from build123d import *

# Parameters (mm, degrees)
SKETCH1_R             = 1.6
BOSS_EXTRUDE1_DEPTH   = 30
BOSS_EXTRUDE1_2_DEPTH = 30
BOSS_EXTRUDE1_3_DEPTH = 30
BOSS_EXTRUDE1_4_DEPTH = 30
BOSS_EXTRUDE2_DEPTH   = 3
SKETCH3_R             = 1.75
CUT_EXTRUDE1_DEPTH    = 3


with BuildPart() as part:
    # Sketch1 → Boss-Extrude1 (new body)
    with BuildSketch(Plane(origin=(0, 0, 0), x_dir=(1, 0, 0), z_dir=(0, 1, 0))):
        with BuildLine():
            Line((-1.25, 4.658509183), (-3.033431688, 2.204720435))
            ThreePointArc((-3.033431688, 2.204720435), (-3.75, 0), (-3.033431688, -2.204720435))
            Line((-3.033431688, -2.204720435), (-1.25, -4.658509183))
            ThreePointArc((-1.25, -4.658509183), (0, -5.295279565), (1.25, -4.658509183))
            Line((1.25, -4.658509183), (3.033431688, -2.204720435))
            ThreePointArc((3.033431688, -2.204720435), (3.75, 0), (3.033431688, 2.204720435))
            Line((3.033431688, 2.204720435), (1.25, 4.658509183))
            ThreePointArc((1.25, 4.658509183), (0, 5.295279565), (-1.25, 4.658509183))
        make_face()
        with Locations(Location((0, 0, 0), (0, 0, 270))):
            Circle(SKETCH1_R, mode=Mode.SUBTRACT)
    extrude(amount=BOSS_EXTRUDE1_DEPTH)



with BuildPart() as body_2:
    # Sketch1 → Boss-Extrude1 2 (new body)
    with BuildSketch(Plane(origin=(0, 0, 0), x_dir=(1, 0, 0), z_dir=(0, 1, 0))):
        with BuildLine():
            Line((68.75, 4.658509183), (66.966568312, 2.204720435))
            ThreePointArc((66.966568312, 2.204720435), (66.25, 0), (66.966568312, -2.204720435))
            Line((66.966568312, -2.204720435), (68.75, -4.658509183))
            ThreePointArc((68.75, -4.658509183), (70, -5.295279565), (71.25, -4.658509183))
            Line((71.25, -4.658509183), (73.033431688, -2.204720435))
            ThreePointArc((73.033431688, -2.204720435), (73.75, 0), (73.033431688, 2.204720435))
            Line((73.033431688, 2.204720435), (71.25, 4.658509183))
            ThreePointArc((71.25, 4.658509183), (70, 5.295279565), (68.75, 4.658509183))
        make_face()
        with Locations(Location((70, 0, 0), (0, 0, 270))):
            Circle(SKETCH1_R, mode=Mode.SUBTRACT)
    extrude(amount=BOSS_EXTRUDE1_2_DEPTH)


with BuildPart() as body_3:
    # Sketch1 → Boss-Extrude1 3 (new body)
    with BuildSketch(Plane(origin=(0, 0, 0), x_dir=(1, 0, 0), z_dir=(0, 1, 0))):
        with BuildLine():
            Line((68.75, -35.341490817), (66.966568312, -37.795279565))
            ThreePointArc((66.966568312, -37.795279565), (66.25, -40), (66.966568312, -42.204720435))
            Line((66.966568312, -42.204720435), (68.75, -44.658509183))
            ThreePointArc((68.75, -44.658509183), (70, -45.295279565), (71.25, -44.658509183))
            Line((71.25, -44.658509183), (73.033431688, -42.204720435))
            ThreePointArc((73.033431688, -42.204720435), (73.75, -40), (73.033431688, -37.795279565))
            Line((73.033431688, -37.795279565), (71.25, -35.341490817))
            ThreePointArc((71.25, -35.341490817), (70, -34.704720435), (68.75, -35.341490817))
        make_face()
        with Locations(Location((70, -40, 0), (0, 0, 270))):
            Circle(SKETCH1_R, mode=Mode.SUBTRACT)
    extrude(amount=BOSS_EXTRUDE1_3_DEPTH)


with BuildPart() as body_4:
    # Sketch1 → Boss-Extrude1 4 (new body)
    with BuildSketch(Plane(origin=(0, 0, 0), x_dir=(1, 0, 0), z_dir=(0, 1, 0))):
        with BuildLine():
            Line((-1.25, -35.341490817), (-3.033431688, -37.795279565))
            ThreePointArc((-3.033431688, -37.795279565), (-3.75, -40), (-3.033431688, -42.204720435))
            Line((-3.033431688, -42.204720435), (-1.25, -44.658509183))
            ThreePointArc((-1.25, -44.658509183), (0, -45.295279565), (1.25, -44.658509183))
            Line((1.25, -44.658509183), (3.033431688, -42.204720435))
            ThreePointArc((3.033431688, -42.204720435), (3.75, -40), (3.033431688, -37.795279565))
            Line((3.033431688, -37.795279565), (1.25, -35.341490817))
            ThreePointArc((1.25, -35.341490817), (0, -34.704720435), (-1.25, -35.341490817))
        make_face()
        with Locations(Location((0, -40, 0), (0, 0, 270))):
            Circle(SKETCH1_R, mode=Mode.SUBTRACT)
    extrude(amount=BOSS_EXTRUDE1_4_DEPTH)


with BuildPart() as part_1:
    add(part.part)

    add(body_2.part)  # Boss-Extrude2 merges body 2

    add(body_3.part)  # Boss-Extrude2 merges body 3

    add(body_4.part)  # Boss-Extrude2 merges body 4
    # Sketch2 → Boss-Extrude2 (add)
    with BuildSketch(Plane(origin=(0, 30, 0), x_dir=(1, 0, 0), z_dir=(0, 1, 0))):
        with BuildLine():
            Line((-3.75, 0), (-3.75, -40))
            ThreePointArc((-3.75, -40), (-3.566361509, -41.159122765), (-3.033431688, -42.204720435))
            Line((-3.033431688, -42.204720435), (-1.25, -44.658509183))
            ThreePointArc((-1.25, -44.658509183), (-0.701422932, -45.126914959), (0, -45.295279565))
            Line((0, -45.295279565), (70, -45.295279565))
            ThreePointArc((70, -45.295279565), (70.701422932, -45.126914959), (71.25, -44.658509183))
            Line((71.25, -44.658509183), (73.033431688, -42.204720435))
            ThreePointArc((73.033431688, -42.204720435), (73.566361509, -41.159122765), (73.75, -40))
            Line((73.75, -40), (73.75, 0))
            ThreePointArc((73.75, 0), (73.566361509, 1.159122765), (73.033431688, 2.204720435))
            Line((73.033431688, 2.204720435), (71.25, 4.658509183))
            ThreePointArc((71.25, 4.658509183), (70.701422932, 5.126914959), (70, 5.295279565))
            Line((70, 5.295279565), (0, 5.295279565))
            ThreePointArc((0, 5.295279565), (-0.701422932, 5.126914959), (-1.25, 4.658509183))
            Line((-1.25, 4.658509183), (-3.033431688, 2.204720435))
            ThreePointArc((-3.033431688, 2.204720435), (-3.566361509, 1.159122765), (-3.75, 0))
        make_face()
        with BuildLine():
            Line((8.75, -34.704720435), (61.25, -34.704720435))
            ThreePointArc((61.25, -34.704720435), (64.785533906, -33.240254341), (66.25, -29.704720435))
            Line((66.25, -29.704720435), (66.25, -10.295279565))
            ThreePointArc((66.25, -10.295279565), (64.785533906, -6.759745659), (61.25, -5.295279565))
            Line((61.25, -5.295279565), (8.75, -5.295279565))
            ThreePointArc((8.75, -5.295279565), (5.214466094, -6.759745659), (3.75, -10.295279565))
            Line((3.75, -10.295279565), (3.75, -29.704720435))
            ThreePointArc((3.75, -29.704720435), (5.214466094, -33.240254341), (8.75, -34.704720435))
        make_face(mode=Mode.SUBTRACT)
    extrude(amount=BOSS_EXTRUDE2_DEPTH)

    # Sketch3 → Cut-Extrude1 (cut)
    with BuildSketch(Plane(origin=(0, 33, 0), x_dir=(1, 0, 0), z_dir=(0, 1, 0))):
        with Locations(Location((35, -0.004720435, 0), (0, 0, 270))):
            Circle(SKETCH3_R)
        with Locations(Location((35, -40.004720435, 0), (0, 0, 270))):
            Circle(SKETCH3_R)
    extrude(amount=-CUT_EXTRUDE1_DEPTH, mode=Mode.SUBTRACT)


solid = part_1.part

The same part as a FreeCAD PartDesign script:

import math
import FreeCAD as App
import Part
import Sketcher

V = App.Vector
Q = App.Units.Quantity

doc = App.newDocument("Part")
body = doc.addObject("PartDesign::Body", "Body")

sketch1 = body.newObject("Sketcher::SketchObject", "Sketch")
sketch1.AttachmentSupport = (doc.getObject("XZ_Plane"), [""])
sketch1.MapMode = "FlatFace"
sketch1.addGeometry([
    Part.LineSegment(V(-1.25, -4.658509, 0), V(-3.033432, -2.20472, 0)),
    Part.ArcOfCircle(Part.Circle(V(0, 0, 0), V(0, 0, 1), 3.75), math.radians(143.99007), math.radians(216.00993)),
    Part.LineSegment(V(-3.033432, 2.20472, 0), V(-1.25, 4.658509, 0)),
    Part.ArcOfCircle(Part.Circle(V(0, 3.75, 0), V(0, 0, 1), 1.54528), math.radians(36.00993), math.radians(143.99007)),
    Part.LineSegment(V(1.25, 4.658509, 0), V(3.033432, 2.20472, 0)),
    Part.ArcOfCircle(Part.Circle(V(0, 0, 0), V(0, 0, 1), 3.75), math.radians(-36.00993), math.radians(36.00993)),
    Part.LineSegment(V(3.033432, -2.20472, 0), V(1.25, -4.658509, 0)),
    Part.ArcOfCircle(Part.Circle(V(0, -3.75, 0), V(0, 0, 1), 1.54528), math.radians(-143.99007), math.radians(-36.00993)),
    Part.Circle(V(0, 0, 0), V(0, 0, 1), 1.6),
], False)
sketch1.addConstraint([
    Sketcher.Constraint("Tangent", 0, 2, 1, 2),
    Sketcher.Constraint("Tangent", 1, 1, 2, 1),
    Sketcher.Constraint("Tangent", 2, 2, 3, 2),
    Sketcher.Constraint("Tangent", 3, 1, 4, 1),
    Sketcher.Constraint("Tangent", 4, 2, 5, 2),
    Sketcher.Constraint("Tangent", 5, 1, 6, 1),
    Sketcher.Constraint("Tangent", 6, 2, 7, 2),
    Sketcher.Constraint("Tangent", 7, 1, 0, 1),
    Sketcher.Constraint("Coincident", 1, 3, -1, 1),
    Sketcher.Constraint("Coincident", 5, 3, -1, 1),
    Sketcher.Constraint("Coincident", 8, 3, -1, 1),
    Sketcher.Constraint("Equal", 1, 5),
    Sketcher.Constraint("Equal", 3, 7),
    Sketcher.Constraint("Symmetric", 3, 3, 7, 3, -1, 1),
    Sketcher.Constraint("PointOnObject", 3, 3, -2),
    Sketcher.Constraint("Diameter", 8, Q("3.2 mm")),
    Sketcher.Constraint("Radius", 1, Q("3.75 mm")),
    Sketcher.Constraint("DistanceY", 7, 3, 3, 3, Q("7.5 mm")),
    Sketcher.Constraint("DistanceX", 2, 2, 3, 1, Q("2.5 mm")),
])
pad1 = body.newObject("PartDesign::Pad", "Pad")
pad1.Profile = sketch1
pad1.Length = 30
pad1.Reversed = True
body2 = doc.addObject("PartDesign::Body", "Body001")

sketch2 = body2.newObject("Sketcher::SketchObject", "Sketch001")
sketch2.AttachmentSupport = (doc.getObject("XZ_Plane001"), [""])
sketch2.MapMode = "FlatFace"
sketch2.addGeometry([
    Part.LineSegment(V(68.75, -4.658509, 0), V(66.966568, -2.20472, 0)),
    Part.ArcOfCircle(Part.Circle(V(70, 0, 0), V(0, 0, 1), 3.75), math.radians(143.99007), math.radians(216.00993)),
    Part.LineSegment(V(66.966568, 2.20472, 0), V(68.75, 4.658509, 0)),
    Part.ArcOfCircle(Part.Circle(V(70, 3.75, 0), V(0, 0, 1), 1.54528), math.radians(36.00993), math.radians(143.99007)),
    Part.LineSegment(V(71.25, 4.658509, 0), V(73.033432, 2.20472, 0)),
    Part.ArcOfCircle(Part.Circle(V(70, 0, 0), V(0, 0, 1), 3.75), math.radians(-36.00993), math.radians(36.00993)),
    Part.LineSegment(V(73.033432, -2.20472, 0), V(71.25, -4.658509, 0)),
    Part.ArcOfCircle(Part.Circle(V(70, -3.75, 0), V(0, 0, 1), 1.54528), math.radians(-143.99007), math.radians(-36.00993)),
    Part.Circle(V(70, 0, 0), V(0, 0, 1), 1.6),
], False)
sketch2.addConstraint([
    Sketcher.Constraint("Tangent", 0, 2, 1, 2),
    Sketcher.Constraint("Tangent", 1, 1, 2, 1),
    Sketcher.Constraint("Tangent", 2, 2, 3, 2),
    Sketcher.Constraint("Tangent", 3, 1, 4, 1),
    Sketcher.Constraint("Tangent", 4, 2, 5, 2),
    Sketcher.Constraint("Tangent", 5, 1, 6, 1),
    Sketcher.Constraint("Tangent", 6, 2, 7, 2),
    Sketcher.Constraint("Tangent", 7, 1, 0, 1),
    Sketcher.Constraint("Coincident", 5, 3, 1, 3),
    Sketcher.Constraint("Coincident", 8, 3, 1, 3),
    Sketcher.Constraint("Equal", 1, 5),
    Sketcher.Constraint("Equal", 3, 7),
    Sketcher.Constraint("Symmetric", 3, 3, 7, 3, -1),
    Sketcher.Constraint("PointOnObject", 1, 3, -1),
    Sketcher.Constraint("Parallel", 0, 4),
    Sketcher.Constraint("Diameter", 8, Q("3.2 mm")),
    Sketcher.Constraint("Radius", 1, Q("3.75 mm")),
    Sketcher.Constraint("DistanceX", -1, 1, 1, 3, Q("70 mm")),
    Sketcher.Constraint("DistanceY", 7, 3, 3, 3, Q("7.5 mm")),
    Sketcher.Constraint("DistanceX", 2, 2, 3, 1, Q("2.5 mm")),
])
pad2 = body2.newObject("PartDesign::Pad", "Pad001")
pad2.Profile = sketch2
pad2.Length = 30
pad2.Reversed = True
body3 = doc.addObject("PartDesign::Body", "Body002")

sketch3 = body3.newObject("Sketcher::SketchObject", "Sketch002")
sketch3.AttachmentSupport = (doc.getObject("XZ_Plane002"), [""])
sketch3.MapMode = "FlatFace"
sketch3.addGeometry([
    Part.LineSegment(V(68.75, 35.341491, 0), V(66.966568, 37.79528, 0)),
    Part.ArcOfCircle(Part.Circle(V(70, 40, 0), V(0, 0, 1), 3.75), math.radians(143.99007), math.radians(216.00993)),
    Part.LineSegment(V(66.966568, 42.20472, 0), V(68.75, 44.658509, 0)),
    Part.ArcOfCircle(Part.Circle(V(70, 43.75, 0), V(0, 0, 1), 1.54528), math.radians(36.00993), math.radians(143.99007)),
    Part.LineSegment(V(71.25, 44.658509, 0), V(73.033432, 42.20472, 0)),
    Part.ArcOfCircle(Part.Circle(V(70, 40, 0), V(0, 0, 1), 3.75), math.radians(-36.00993), math.radians(36.00993)),
    Part.LineSegment(V(73.033432, 37.79528, 0), V(71.25, 35.341491, 0)),
    Part.ArcOfCircle(Part.Circle(V(70, 36.25, 0), V(0, 0, 1), 1.54528), math.radians(-143.99007), math.radians(-36.00993)),
    Part.Circle(V(70, 40, 0), V(0, 0, 1), 1.6),
], False)
sketch3.addConstraint([
    Sketcher.Constraint("Tangent", 0, 2, 1, 2),
    Sketcher.Constraint("Tangent", 1, 1, 2, 1),
    Sketcher.Constraint("Tangent", 2, 2, 3, 2),
    Sketcher.Constraint("Tangent", 3, 1, 4, 1),
    Sketcher.Constraint("Tangent", 4, 2, 5, 2),
    Sketcher.Constraint("Tangent", 5, 1, 6, 1),
    Sketcher.Constraint("Tangent", 6, 2, 7, 2),
    Sketcher.Constraint("Tangent", 7, 1, 0, 1),
    Sketcher.Constraint("Coincident", 5, 3, 1, 3),
    Sketcher.Constraint("Coincident", 8, 3, 1, 3),
    Sketcher.Constraint("Equal", 1, 5),
    Sketcher.Constraint("Equal", 3, 7),
    Sketcher.Constraint("Parallel", 0, 4),
    Sketcher.Constraint("Parallel", 2, 6),
    Sketcher.Constraint("Horizontal", 2, 2, 3, 1),
    Sketcher.Constraint("Diameter", 8, Q("3.2 mm")),
    Sketcher.Constraint("Radius", 1, Q("3.75 mm")),
    Sketcher.Constraint("DistanceX", -1, 1, 1, 3, Q("70 mm")),
    Sketcher.Constraint("DistanceY", -1, 1, 1, 3, Q("40 mm")),
    Sketcher.Constraint("DistanceY", 7, 3, 3, 3, Q("7.5 mm")),
    Sketcher.Constraint("DistanceX", 2, 2, 3, 1, Q("2.5 mm")),
])
pad3 = body3.newObject("PartDesign::Pad", "Pad002")
pad3.Profile = sketch3
pad3.Length = 30
pad3.Reversed = True
body4 = doc.addObject("PartDesign::Body", "Body003")

sketch4 = body4.newObject("Sketcher::SketchObject", "Sketch003")
sketch4.AttachmentSupport = (doc.getObject("XZ_Plane003"), [""])
sketch4.MapMode = "FlatFace"
sketch4.addGeometry([
    Part.LineSegment(V(-1.25, 35.341491, 0), V(-3.033432, 37.79528, 0)),
    Part.ArcOfCircle(Part.Circle(V(0, 40, 0), V(0, 0, 1), 3.75), math.radians(143.99007), math.radians(216.00993)),
    Part.LineSegment(V(-3.033432, 42.20472, 0), V(-1.25, 44.658509, 0)),
    Part.ArcOfCircle(Part.Circle(V(0, 43.75, 0), V(0, 0, 1), 1.54528), math.radians(36.00993), math.radians(143.99007)),
    Part.LineSegment(V(1.25, 44.658509, 0), V(3.033432, 42.20472, 0)),
    Part.ArcOfCircle(Part.Circle(V(0, 40, 0), V(0, 0, 1), 3.75), math.radians(-36.00993), math.radians(36.00993)),
    Part.LineSegment(V(3.033432, 37.79528, 0), V(1.25, 35.341491, 0)),
    Part.ArcOfCircle(Part.Circle(V(0, 36.25, 0), V(0, 0, 1), 1.54528), math.radians(-143.99007), math.radians(-36.00993)),
    Part.Circle(V(0, 40, 0), V(0, 0, 1), 1.6),
], False)
sketch4.addConstraint([
    Sketcher.Constraint("Tangent", 0, 2, 1, 2),
    Sketcher.Constraint("Tangent", 1, 1, 2, 1),
    Sketcher.Constraint("Tangent", 2, 2, 3, 2),
    Sketcher.Constraint("Tangent", 3, 1, 4, 1),
    Sketcher.Constraint("Tangent", 4, 2, 5, 2),
    Sketcher.Constraint("Tangent", 5, 1, 6, 1),
    Sketcher.Constraint("Tangent", 6, 2, 7, 2),
    Sketcher.Constraint("Tangent", 7, 1, 0, 1),
    Sketcher.Constraint("Coincident", 5, 3, 1, 3),
    Sketcher.Constraint("Coincident", 8, 3, 1, 3),
    Sketcher.Constraint("Equal", 1, 5),
    Sketcher.Constraint("Equal", 3, 7),
    Sketcher.Constraint("Symmetric", 2, 2, 3, 1, -2),
    Sketcher.Constraint("PointOnObject", 7, 3, -2),
    Sketcher.Constraint("Parallel", 0, 4),
    Sketcher.Constraint("Diameter", 8, Q("3.2 mm")),
    Sketcher.Constraint("Radius", 1, Q("3.75 mm")),
    Sketcher.Constraint("DistanceY", -1, 1, 1, 3, Q("40 mm")),
    Sketcher.Constraint("DistanceY", 7, 3, 3, 3, Q("7.5 mm")),
    Sketcher.Constraint("DistanceX", 2, 2, 3, 1, Q("2.5 mm")),
])
pad4 = body4.newObject("PartDesign::Pad", "Pad003")
pad4.Profile = sketch4
pad4.Length = 30
pad4.Reversed = True
body.AllowCompound = True
doc.recompute()

boolean = body.newObject("PartDesign::Boolean", "Boolean")
boolean.Type = "Fuse"
boolean.addObjects([body2])
doc.recompute()

boolean2 = body.newObject("PartDesign::Boolean", "Boolean001")
boolean2.Type = "Fuse"
boolean2.addObjects([body3])
doc.recompute()

boolean3 = body.newObject("PartDesign::Boolean", "Boolean002")
boolean3.Type = "Fuse"
boolean3.addObjects([body4])

sketch5 = body.newObject("Sketcher::SketchObject", "Sketch004")
sketch5.AttachmentSupport = (doc.getObject("XZ_Plane"), [""])
sketch5.MapMode = "FlatFace"
sketch5.AttachmentOffset = App.Placement(V(0, 0, -30), App.Rotation())
sketch5.addGeometry([
    Part.LineSegment(V(-3.75, 0, 0), V(-3.75, 40, 0)),
    Part.ArcOfCircle(Part.Circle(V(0, 40, 0), V(0, 0, 1), 3.75), math.radians(143.99007), math.radians(180)),
    Part.LineSegment(V(-3.033432, 42.20472, 0), V(-1.25, 44.658509, 0)),
    Part.ArcOfCircle(Part.Circle(V(0, 43.75, 0), V(0, 0, 1), 1.54528), math.radians(90), math.radians(143.99007)),
    Part.LineSegment(V(0, 45.29528, 0), V(70, 45.29528, 0)),
    Part.ArcOfCircle(Part.Circle(V(70, 43.75, 0), V(0, 0, 1), 1.54528), math.radians(36.00993), math.radians(90)),
    Part.LineSegment(V(71.25, 44.658509, 0), V(73.033432, 42.20472, 0)),
    Part.ArcOfCircle(Part.Circle(V(70, 40, 0), V(0, 0, 1), 3.75), math.radians(0), math.radians(36.00993)),
    Part.LineSegment(V(73.75, 40, 0), V(73.75, 0, 0)),
    Part.ArcOfCircle(Part.Circle(V(70, 0, 0), V(0, 0, 1), 3.75), math.radians(-36.00993), math.radians(0)),
    Part.LineSegment(V(73.033432, -2.20472, 0), V(71.25, -4.658509, 0)),
    Part.ArcOfCircle(Part.Circle(V(70, -3.75, 0), V(0, 0, 1), 1.54528), math.radians(-90), math.radians(-36.00993)),
    Part.LineSegment(V(70, -5.29528, 0), V(0, -5.29528, 0)),
    Part.ArcOfCircle(Part.Circle(V(0, -3.75, 0), V(0, 0, 1), 1.54528), math.radians(-143.99007), math.radians(-90)),
    Part.LineSegment(V(-1.25, -4.658509, 0), V(-3.033432, -2.20472, 0)),
    Part.ArcOfCircle(Part.Circle(V(0, 0, 0), V(0, 0, 1), 3.75), math.radians(-180), math.radians(-143.99007)),
    Part.LineSegment(V(61.25, 34.70472, 0), V(8.75, 34.70472, 0)),
    Part.ArcOfCircle(Part.Circle(V(8.75, 29.70472, 0), V(0, 0, 1), 5), math.radians(90), math.radians(180)),
    Part.LineSegment(V(3.75, 29.70472, 0), V(3.75, 10.29528, 0)),
    Part.ArcOfCircle(Part.Circle(V(8.75, 10.29528, 0), V(0, 0, 1), 5), math.radians(180), math.radians(270)),
    Part.LineSegment(V(8.75, 5.29528, 0), V(61.25, 5.29528, 0)),
    Part.ArcOfCircle(Part.Circle(V(61.25, 10.29528, 0), V(0, 0, 1), 5), math.radians(-90), math.radians(0)),
    Part.LineSegment(V(66.25, 10.29528, 0), V(66.25, 29.70472, 0)),
    Part.ArcOfCircle(Part.Circle(V(61.25, 29.70472, 0), V(0, 0, 1), 5), math.radians(0), math.radians(90)),
], False)
sketch5.addConstraint([
    Sketcher.Constraint("Tangent", 0, 2, 1, 2),
    Sketcher.Constraint("Tangent", 1, 1, 2, 1),
    Sketcher.Constraint("Tangent", 2, 2, 3, 2),
    Sketcher.Constraint("Tangent", 3, 1, 4, 1),
    Sketcher.Constraint("Tangent", 4, 2, 5, 2),
    Sketcher.Constraint("Tangent", 5, 1, 6, 1),
    Sketcher.Constraint("Tangent", 6, 2, 7, 2),
    Sketcher.Constraint("Tangent", 7, 1, 8, 1),
    Sketcher.Constraint("Tangent", 8, 2, 9, 2),
    Sketcher.Constraint("Tangent", 9, 1, 10, 1),
    Sketcher.Constraint("Tangent", 10, 2, 11, 2),
    Sketcher.Constraint("Tangent", 11, 1, 12, 1),
    Sketcher.Constraint("Tangent", 12, 2, 13, 2),
    Sketcher.Constraint("Tangent", 13, 1, 14, 1),
    Sketcher.Constraint("Tangent", 14, 2, 15, 2),
    Sketcher.Constraint("Tangent", 15, 1, 0, 1),
    Sketcher.Constraint("Tangent", 16, 2, 17, 1),
    Sketcher.Constraint("Tangent", 17, 2, 18, 1),
    Sketcher.Constraint("Tangent", 18, 2, 19, 1),
    Sketcher.Constraint("Tangent", 19, 2, 20, 1),
    Sketcher.Constraint("Tangent", 20, 2, 21, 1),
    Sketcher.Constraint("Tangent", 21, 2, 22, 1),
    Sketcher.Constraint("Tangent", 22, 2, 23, 1),
    Sketcher.Constraint("Tangent", 23, 2, 16, 1),
    Sketcher.Constraint("Vertical", 0),
    Sketcher.Constraint("Horizontal", 4),
    Sketcher.Constraint("Vertical", 8),
    Sketcher.Constraint("Horizontal", 12),
    Sketcher.Constraint("Horizontal", 16),
    Sketcher.Constraint("Vertical", 18),
    Sketcher.Constraint("Horizontal", 20),
    Sketcher.Constraint("Vertical", 22),
    Sketcher.Constraint("Coincident", 15, 3, -1, 1),
    Sketcher.Constraint("Equal", 3, 5),
    Sketcher.Constraint("Equal", 1, 7),
    Sketcher.Constraint("Equal", 7, 9),
    Sketcher.Constraint("Equal", 5, 11),
    Sketcher.Constraint("Equal", 11, 13),
    Sketcher.Constraint("Equal", 9, 15),
    Sketcher.Constraint("Equal", 17, 19),
    Sketcher.Constraint("Equal", 19, 21),
    Sketcher.Constraint("Equal", 21, 23),
    Sketcher.Constraint("PointOnObject", 3, 3, -2),
    Sketcher.Constraint("PointOnObject", 9, 3, -1),
    Sketcher.Constraint("PointOnObject", 13, 3, -2),
    Sketcher.Constraint("Parallel", 2, 10),
    Sketcher.Constraint("Parallel", 6, 14),
    Sketcher.Constraint("Horizontal", 1, 3, 7, 3),
    Sketcher.Constraint("Horizontal", 2, 2, 5, 1),
    Sketcher.Constraint("Radius", 17, Q("5 mm")),
    Sketcher.Constraint("DistanceX", 4, 1, 4, 2, Q("70 mm")),
    Sketcher.Constraint("DistanceY", 0, 1, 0, 2, Q("40 mm")),
    Sketcher.Constraint("Radius", 1, Q("3.75 mm")),
    Sketcher.Constraint("DistanceX", 16, 2, 16, 1, Q("52.5 mm")),
    Sketcher.Constraint("DistanceX", 2, 2, 17, 3, Q("10 mm")),
    Sketcher.Constraint("DistanceY", 21, 3, 4, 2, Q("35 mm")),
    Sketcher.Constraint("DistanceX", 23, 3, 5, 1, Q("10 mm")),
    Sketcher.Constraint("DistanceY", 12, 2, 17, 3, Q("35 mm")),
    Sketcher.Constraint("DistanceY", 11, 3, 5, 3, Q("47.5 mm")),
])
pad5 = body.newObject("PartDesign::Pad", "Pad004")
pad5.Profile = sketch5
pad5.Length = 3
pad5.Reversed = True

sketch6 = body.newObject("Sketcher::SketchObject", "Sketch005")
sketch6.AttachmentSupport = (doc.getObject("XZ_Plane"), [""])
sketch6.MapMode = "FlatFace"
sketch6.AttachmentOffset = App.Placement(V(0, 0, -33), App.Rotation())
sketch6.addGeometry([
    Part.Circle(V(35, 0.00472, 0), V(0, 0, 1), 1.75),
    Part.Circle(V(35, 40.00472, 0), V(0, 0, 1), 1.75),
], False)
sketch6.addConstraint([
    Sketcher.Constraint("Equal", 0, 1),
    Sketcher.Constraint("Vertical", 0, 3, 1, 3),
    Sketcher.Constraint("Diameter", 0, Q("3.5 mm")),
    Sketcher.Constraint("DistanceX", -1, 1, 0, 3, Q("35 mm")),
    Sketcher.Constraint("DistanceY", 0, 3, 1, 3, Q("40 mm")),
    Sketcher.Constraint("DistanceY", -1, 1, 0, 3, Q("0.00472 mm")),
])
pocket1 = body.newObject("PartDesign::Pocket", "Pocket")
pocket1.Profile = sketch6
pocket1.Length = 3
pocket1.Reversed = True

doc.recompute()
